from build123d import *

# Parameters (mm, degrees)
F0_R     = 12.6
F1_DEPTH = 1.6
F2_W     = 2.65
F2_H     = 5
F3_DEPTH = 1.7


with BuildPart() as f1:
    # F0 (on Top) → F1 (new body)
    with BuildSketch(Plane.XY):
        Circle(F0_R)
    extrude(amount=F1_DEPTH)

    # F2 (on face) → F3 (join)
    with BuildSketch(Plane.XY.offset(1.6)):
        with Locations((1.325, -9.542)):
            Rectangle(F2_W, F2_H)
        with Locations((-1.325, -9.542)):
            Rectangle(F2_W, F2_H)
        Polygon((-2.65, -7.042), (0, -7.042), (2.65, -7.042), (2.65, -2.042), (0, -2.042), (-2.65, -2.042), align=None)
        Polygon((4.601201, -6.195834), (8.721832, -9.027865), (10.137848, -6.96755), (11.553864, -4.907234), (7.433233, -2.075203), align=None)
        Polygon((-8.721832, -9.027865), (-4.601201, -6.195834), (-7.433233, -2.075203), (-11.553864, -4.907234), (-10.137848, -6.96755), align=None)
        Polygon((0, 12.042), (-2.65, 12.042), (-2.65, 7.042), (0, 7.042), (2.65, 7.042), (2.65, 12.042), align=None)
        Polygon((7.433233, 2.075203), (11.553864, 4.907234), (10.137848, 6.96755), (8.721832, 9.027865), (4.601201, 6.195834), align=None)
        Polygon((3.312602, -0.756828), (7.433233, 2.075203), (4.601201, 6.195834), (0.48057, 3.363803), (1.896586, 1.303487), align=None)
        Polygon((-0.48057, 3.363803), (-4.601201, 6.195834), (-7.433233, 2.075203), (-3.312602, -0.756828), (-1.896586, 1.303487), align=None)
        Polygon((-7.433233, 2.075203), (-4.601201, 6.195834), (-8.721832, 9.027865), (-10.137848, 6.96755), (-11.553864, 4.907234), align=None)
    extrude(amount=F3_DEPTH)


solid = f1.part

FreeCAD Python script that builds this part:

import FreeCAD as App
import Part
import Sketcher

V = App.Vector
Q = App.Units.Quantity


def add_polygon(sketch, points):
    """Adds a closed chain of lines whose ends are joined by coincident constraints."""
    first, n = sketch.GeometryCount, len(points)
    for a, b in zip(points, points[1:] + points[:1]):
        sketch.addGeometry(Part.LineSegment(App.Vector(*a, 0), App.Vector(*b, 0)), False)
    for i in range(n):
        sketch.addConstraint(Sketcher.Constraint("Coincident", first + i, 2, first + (i + 1) % n, 1))

doc = App.newDocument("Part")
body = doc.addObject("PartDesign::Body", "Body")

sketch1 = body.newObject("Sketcher::SketchObject", "Sketch")
sketch1.AttachmentSupport = (doc.getObject("XY_Plane"), [""])
sketch1.MapMode = "FlatFace"
sketch1.addGeometry(Part.Circle(V(0, 0, 0), V(0, 0, 1), 13), False)
sketch1.addConstraint([
    Sketcher.Constraint("Coincident", 0, 3, -1, 1),
    Sketcher.Constraint("Diameter", 0, 25.2),
])
pad1 = body.newObject("PartDesign::Pad", "Pad")
pad1.Profile = sketch1
pad1.Length = 1.6

sketch2 = body.newObject("Sketcher::SketchObject", "Sketch001")
sketch2.AttachmentSupport = (doc.getObject("XY_Plane"), [""])
sketch2.MapMode = "FlatFace"
sketch2.AttachmentOffset = App.Placement(V(0, 0, 1.6), App.Rotation())
add_polygon(sketch2, [(2.6, -12), (2.6, -2), (-2.6, -2), (-2.6, -12)])
add_polygon(sketch2, [(4.6, -6.2), (8.7, -9), (10.1, -7), (11.6, -4.9), (7.4, -2.1)])
add_polygon(sketch2, [(-8.7, -9), (-4.6, -6.2), (-7.4, -2.1), (-11.6, -4.9), (-10.1, -7)])
add_polygon(sketch2, [(-2.6, 12), (-2.6, 7), (2.6, 7), (2.6, 12)])
add_polygon(sketch2, [(11.6, 4.9), (10.1, 7), (8.7, 9), (0.5, 3.4), (1.9, 1.3), (3.3, -0.8)])
add_polygon(sketch2, [(-0.5, 3.4), (-8.7, 9), (-10.1, 7), (-11.6, 4.9), (-3.3, -0.8), (-1.9, 1.3)])
sketch2.addConstraint([
    Sketcher.Constraint("Vertical", 0),
    Sketcher.Constraint("Horizontal", 1),
    Sketcher.Constraint("Vertical", 2),
    Sketcher.Constraint("Horizontal", 3),
    Sketcher.Constraint("Vertical", 14),
    Sketcher.Constraint("Horizontal", 15),
    Sketcher.Constraint("Vertical", 16),
    Sketcher.Constraint("Horizontal", 17),
    Sketcher.Constraint("Symmetric", 2, 2, 16, 2, -1, 1),
    Sketcher.Constraint("Symmetric", 12, 2, 18, 2, -1, 1),
    Sketcher.Constraint("Symmetric", 13, 2, 19, 2, -1, 1),
    Sketcher.Constraint("Symmetric", 11, 2, 23, 2, -1, 1),
    Sketcher.Constraint("Symmetric", 4, 2, 24, 2, -1, 1),
    Sketcher.Constraint("Symmetric", 5, 2, 25, 2, -1, 1),
    Sketcher.Constraint("Symmetric", 6, 2, 26, 2, -1, 1),
    Sketcher.Constraint("Symmetric", 8, 2, 9, 2, -2),
    Sketcher.Constraint("Symmetric", 7, 2, 10, 2, -2),
    Sketcher.Constraint("Symmetric", 6, 2, 11, 2, -2),
    Sketcher.Constraint("Symmetric", 5, 2, 12, 2, -2),
    Sketcher.Constraint("Symmetric", 4, 2, 13, 2, -2),
    Sketcher.Constraint("Symmetric", 22, 2, 27, 2, -2),
    Sketcher.Constraint("Symmetric", 21, 2, 28, 2, -2),
    Sketcher.Constraint("Symmetric", 20, 2, 29, 2, -2),
    Sketcher.Constraint("Perpendicular", 4, 5),
    Sketcher.Constraint("Parallel", 5, 6),
    Sketcher.Constraint("Perpendicular", 6, 7),
    Sketcher.Constraint("Perpendicular", 7, 8),
    Sketcher.Constraint("Perpendicular", 19, 20),
    Sketcher.Constraint("Perpendicular", 20, 21),
    Sketcher.Constraint("Parallel", 21, 22),
    Sketcher.Constraint("Perpendicular", 22, 23),
    Sketcher.Constraint("Vertical", 2, 2, 14, 2),
    Sketcher.Constraint("Vertical", 3, 2, 15, 2),
    Sketcher.Constraint("Equal", 5, 6),
    Sketcher.Constraint("Equal", 7, 8),
    Sketcher.Constraint("Equal", 19, 21),
    Sketcher.Constraint("DistanceY", 0, 1, 0, 2, 10.0),
    Sketcher.Constraint("DistanceY", 14, 2, 14, 1, 5.0),
    Sketcher.Constraint("Distance", 4, 5.0),
    Sketcher.Constraint("Distance", 20, 10.0),
    Sketcher.Constraint("DistanceX", 1, 2, 1, 1, 5.3),
    Sketcher.Constraint("Angle", 4, Q("-34.499998 deg")),
    Sketcher.Constraint("DistanceY", 0, 2, -1, 1, 2.042),
    Sketcher.Constraint("DistanceX", -1, 1, 8, 2, 4.601201),
    Sketcher.Constraint("DistanceY", 5, 2, -1, 1, 6.96755),
])
pad2 = body.newObject("PartDesign::Pad", "Pad001")
pad2.Profile = sketch2
pad2.Length = 1.7

doc.recompute()
